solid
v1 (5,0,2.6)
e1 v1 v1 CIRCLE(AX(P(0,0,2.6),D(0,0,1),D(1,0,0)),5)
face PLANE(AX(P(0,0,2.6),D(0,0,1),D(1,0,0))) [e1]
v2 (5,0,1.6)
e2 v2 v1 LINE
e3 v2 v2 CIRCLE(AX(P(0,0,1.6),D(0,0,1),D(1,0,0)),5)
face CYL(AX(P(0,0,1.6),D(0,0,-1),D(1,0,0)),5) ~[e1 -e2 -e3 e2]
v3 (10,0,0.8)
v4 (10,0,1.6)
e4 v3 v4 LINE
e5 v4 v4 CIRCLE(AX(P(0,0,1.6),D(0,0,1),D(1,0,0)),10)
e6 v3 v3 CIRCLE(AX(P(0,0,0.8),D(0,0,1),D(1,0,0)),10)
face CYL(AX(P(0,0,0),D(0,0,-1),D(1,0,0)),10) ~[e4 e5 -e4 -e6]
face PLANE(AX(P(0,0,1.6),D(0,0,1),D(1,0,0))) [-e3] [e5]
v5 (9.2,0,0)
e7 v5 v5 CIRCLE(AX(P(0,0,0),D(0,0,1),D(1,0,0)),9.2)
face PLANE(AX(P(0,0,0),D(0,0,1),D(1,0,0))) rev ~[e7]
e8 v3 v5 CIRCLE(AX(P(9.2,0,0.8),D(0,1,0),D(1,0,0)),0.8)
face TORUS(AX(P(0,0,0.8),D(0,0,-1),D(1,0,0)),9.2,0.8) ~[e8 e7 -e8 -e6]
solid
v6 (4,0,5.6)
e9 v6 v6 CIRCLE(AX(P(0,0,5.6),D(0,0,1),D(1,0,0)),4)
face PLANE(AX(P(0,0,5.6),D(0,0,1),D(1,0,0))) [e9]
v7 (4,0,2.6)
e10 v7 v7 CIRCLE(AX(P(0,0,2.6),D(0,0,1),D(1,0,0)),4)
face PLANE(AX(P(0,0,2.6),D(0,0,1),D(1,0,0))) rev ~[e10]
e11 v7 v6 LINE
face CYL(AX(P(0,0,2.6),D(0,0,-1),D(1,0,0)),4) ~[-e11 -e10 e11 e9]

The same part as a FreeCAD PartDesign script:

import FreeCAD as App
import Part
import Sketcher
Q = App.Units.Quantity


def edges_at(feature, points):
    """Names of the edges that pass closest to the given points."""
    edges = feature.Shape.Edges
    near = lambda p: min(range(len(edges)), key=lambda i: edges[i].distToShape(Part.Vertex(*p))[0])
    return sorted({f"Edge{near(p) + 1}" for p in points})

doc = App.newDocument("Part")
body = doc.addObject("PartDesign::Body", "Body")

# Sketch on XY plane
sketch1 = body.newObject("Sketcher::SketchObject", "Sketch")
sketch1.AttachmentSupport = (doc.getObject("XY_Plane"), [""])
sketch1.MapMode = "FlatFace"
sketch1.addGeometry(Part.Circle(App.Vector(0, 0, 0), App.Vector(0, 0, 1), 10), False)
sketch1.addConstraint([
    Sketcher.Constraint("Coincident", 0, 3, -1, 1),
    Sketcher.Constraint("Diameter", 0, Q("20 mm")),
])
pad1 = body.newObject("PartDesign::Pad", "Pad")
pad1.Profile = sketch1
pad1.Length = 1.6

# Sketch on XY plane
sketch2 = body.newObject("Sketcher::SketchObject", "Sketch001")
sketch2.AttachmentSupport = (doc.getObject("XY_Plane"), [""])
sketch2.MapMode = "FlatFace"
sketch2.AttachmentOffset = App.Placement(App.Vector(0, 0, 1.6), App.Rotation())
sketch2.addGeometry(Part.Circle(App.Vector(0, 0, 0), App.Vector(0, 0, 1), 5), False)
sketch2.addConstraint([
    Sketcher.Constraint("Coincident", 0, 3, -1, 1),
    Sketcher.Constraint("Diameter", 0, Q("10 mm")),
])
pad2 = body.newObject("PartDesign::Pad", "Pad001")
pad2.Profile = sketch2
pad2.Length = 1
doc.recompute()

fillet = body.newObject("PartDesign::Fillet", "Fillet")
fillet.Base = (pad2, edges_at(pad2, [(-10, 0, 0)]))
fillet.Radius = 0.8
body2 = doc.addObject("PartDesign::Body", "Body001")

# Sketch on XY plane
sketch3 = body2.newObject("Sketcher::SketchObject", "Sketch002")
sketch3.AttachmentSupport = (doc.getObject("XY_Plane001"), [""])
sketch3.MapMode = "FlatFace"
sketch3.AttachmentOffset = App.Placement(App.Vector(0, 0, 2.6), App.Rotation())
sketch3.addGeometry(Part.Circle(App.Vector(0, 0, 0), App.Vector(0, 0, 1), 4), False)
sketch3.addConstraint([
    Sketcher.Constraint("Coincident", 0, 3, -1, 1),
    Sketcher.Constraint("Diameter", 0, Q("8 mm")),
])
pad3 = body2.newObject("PartDesign::Pad", "Pad002")
pad3.Profile = sketch3
pad3.Length = 3

doc.recompute()
